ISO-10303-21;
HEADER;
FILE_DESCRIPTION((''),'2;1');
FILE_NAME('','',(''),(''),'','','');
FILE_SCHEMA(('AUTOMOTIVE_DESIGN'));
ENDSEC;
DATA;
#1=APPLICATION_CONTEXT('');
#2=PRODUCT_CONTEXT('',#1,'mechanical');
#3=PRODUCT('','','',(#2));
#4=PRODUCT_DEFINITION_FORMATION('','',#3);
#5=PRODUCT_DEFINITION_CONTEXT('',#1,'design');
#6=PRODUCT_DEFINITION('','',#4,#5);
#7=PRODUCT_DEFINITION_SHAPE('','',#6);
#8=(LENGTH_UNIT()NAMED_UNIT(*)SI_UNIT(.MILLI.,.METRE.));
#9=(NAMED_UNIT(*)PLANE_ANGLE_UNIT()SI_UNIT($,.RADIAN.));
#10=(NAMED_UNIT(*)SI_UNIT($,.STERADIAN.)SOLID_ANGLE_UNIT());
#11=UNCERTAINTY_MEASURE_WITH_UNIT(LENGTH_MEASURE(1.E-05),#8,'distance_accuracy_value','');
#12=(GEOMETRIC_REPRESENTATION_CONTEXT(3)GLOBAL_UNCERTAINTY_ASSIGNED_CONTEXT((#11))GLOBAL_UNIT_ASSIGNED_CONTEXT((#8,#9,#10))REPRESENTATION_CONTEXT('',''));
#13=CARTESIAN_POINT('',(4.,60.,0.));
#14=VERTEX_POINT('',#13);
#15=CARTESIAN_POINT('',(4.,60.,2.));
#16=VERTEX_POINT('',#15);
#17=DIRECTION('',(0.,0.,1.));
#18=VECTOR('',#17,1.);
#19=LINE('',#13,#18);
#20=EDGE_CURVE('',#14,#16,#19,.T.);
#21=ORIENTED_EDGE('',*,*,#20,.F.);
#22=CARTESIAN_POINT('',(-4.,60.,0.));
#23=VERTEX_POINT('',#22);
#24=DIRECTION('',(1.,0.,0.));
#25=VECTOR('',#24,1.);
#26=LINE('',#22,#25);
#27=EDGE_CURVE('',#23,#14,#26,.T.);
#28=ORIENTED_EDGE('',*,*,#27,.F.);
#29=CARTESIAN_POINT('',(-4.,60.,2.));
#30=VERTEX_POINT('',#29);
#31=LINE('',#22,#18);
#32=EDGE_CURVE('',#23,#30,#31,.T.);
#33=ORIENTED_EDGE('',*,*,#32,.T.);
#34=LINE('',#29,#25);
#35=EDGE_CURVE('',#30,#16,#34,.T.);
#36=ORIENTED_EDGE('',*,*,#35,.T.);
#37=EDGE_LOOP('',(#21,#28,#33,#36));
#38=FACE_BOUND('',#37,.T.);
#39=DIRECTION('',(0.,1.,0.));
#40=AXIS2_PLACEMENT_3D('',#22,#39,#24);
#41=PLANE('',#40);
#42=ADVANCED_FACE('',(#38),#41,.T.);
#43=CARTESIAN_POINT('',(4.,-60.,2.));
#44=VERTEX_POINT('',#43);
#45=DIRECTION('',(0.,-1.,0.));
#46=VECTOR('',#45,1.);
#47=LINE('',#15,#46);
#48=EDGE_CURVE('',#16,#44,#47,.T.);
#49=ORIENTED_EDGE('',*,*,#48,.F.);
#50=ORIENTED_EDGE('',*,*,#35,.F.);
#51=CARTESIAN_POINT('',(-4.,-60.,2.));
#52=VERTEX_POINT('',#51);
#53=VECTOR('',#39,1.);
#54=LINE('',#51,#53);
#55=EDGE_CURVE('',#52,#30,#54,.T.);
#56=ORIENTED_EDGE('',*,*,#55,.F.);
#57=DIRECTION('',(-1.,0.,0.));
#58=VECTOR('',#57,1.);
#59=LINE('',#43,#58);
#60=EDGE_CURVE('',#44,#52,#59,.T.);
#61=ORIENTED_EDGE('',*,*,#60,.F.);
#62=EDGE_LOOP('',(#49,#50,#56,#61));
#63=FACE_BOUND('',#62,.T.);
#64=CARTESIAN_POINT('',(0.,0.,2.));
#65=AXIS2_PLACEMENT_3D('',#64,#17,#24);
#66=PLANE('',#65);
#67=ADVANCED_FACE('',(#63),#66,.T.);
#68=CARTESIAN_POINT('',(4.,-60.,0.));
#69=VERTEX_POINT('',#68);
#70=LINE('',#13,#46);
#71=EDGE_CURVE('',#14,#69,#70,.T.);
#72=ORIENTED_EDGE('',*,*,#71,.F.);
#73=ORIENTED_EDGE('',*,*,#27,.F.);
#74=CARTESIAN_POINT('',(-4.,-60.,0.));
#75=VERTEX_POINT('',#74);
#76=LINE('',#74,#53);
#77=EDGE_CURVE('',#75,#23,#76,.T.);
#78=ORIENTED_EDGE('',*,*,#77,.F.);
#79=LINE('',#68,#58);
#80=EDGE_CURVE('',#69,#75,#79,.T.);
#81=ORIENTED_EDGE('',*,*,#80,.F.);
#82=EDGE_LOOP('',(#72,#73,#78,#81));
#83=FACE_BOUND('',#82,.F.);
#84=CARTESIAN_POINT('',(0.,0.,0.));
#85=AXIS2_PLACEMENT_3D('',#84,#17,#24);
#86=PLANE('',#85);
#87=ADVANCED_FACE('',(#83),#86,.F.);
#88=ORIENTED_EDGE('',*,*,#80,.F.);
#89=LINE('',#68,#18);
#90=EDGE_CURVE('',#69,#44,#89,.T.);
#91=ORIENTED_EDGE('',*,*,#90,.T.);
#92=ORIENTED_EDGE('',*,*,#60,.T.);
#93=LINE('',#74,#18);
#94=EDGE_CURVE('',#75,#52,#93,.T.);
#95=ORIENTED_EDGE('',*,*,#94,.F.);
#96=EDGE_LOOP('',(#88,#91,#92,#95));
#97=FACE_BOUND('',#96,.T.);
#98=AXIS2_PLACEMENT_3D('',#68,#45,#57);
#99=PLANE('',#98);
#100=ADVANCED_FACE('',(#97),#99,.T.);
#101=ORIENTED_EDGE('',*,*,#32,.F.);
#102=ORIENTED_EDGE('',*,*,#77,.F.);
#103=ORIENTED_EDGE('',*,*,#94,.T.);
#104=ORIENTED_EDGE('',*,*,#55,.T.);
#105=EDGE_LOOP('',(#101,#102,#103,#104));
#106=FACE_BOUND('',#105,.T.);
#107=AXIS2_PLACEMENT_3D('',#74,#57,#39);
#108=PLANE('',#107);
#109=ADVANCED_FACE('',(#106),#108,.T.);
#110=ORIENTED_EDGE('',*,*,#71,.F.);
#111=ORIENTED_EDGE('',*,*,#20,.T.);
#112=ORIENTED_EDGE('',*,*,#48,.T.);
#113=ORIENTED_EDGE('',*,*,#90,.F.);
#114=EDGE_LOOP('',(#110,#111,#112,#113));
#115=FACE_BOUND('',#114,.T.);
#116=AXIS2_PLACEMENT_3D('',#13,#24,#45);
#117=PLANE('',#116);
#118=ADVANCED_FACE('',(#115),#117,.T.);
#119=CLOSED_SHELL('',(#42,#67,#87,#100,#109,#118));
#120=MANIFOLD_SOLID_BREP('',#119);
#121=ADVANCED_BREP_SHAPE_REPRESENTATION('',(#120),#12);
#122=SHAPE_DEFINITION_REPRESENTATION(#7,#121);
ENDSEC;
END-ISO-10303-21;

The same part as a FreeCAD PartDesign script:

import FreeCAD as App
import Part
import Sketcher

V = App.Vector
Q = App.Units.Quantity

doc = App.newDocument("Part")
params = doc.addObject("Spreadsheet::Sheet", "Params")
for row, (alias, value) in enumerate([
    ("sketch1_width", "8 mm"),
    ("sketch1_height", "120 mm"),
    ("pad1_length", "2 mm"),
], start=1):
    params.set(f"A{row}", alias)
    params.set(f"B{row}", "=" + value)
    params.setAlias(f"B{row}", alias)

body = doc.addObject("PartDesign::Body", "Body")

sketch1 = body.newObject("Sketcher::SketchObject", "Sketch")
sketch1.AttachmentSupport = (doc.getObject("XY_Plane"), [""])
sketch1.MapMode = "FlatFace"
sketch1.addGeometry(Part.LineSegment(V(4, 60, 0), V(-4, 60, 0)), False)
sketch1.addGeometry(Part.LineSegment(V(-4, 60, 0), V(-4, -60, 0)), False)
sketch1.addGeometry(Part.LineSegment(V(-4, -60, 0), V(4, -60, 0)), False)
sketch1.addGeometry(Part.LineSegment(V(4, -60, 0), V(4, 60, 0)), False)
sketch1.addConstraint(Sketcher.Constraint("Coincident", 0, 2, 1, 1))
sketch1.addConstraint(Sketcher.Constraint("Coincident", 1, 2, 2, 1))
sketch1.addConstraint(Sketcher.Constraint("Coincident", 2, 2, 3, 1))
sketch1.addConstraint(Sketcher.Constraint("Coincident", 3, 2, 0, 1))
sketch1.addConstraint(Sketcher.Constraint("Horizontal", 0))
sketch1.addConstraint(Sketcher.Constraint("Vertical", 1))
sketch1.addConstraint(Sketcher.Constraint("Horizontal", 2))
sketch1.addConstraint(Sketcher.Constraint("Vertical", 3))
sketch1.addConstraint(Sketcher.Constraint("Symmetric", 0, 2, 2, 2, -1, 1))
sketch1.addConstraint(Sketcher.Constraint("DistanceX", 0, 2, 0, 1, Q("8 mm")))
sketch1.addConstraint(Sketcher.Constraint("DistanceY", 1, 2, 1, 1, Q("120 mm")))
sketch1.setExpression("Constraints[9]", "Params.sketch1_width")
sketch1.setExpression("Constraints[10]", "Params.sketch1_height")
pad1 = body.newObject("PartDesign::Pad", "Pad")
pad1.Profile = sketch1
pad1.setExpression("Length", "Params.pad1_length")

doc.recompute()
